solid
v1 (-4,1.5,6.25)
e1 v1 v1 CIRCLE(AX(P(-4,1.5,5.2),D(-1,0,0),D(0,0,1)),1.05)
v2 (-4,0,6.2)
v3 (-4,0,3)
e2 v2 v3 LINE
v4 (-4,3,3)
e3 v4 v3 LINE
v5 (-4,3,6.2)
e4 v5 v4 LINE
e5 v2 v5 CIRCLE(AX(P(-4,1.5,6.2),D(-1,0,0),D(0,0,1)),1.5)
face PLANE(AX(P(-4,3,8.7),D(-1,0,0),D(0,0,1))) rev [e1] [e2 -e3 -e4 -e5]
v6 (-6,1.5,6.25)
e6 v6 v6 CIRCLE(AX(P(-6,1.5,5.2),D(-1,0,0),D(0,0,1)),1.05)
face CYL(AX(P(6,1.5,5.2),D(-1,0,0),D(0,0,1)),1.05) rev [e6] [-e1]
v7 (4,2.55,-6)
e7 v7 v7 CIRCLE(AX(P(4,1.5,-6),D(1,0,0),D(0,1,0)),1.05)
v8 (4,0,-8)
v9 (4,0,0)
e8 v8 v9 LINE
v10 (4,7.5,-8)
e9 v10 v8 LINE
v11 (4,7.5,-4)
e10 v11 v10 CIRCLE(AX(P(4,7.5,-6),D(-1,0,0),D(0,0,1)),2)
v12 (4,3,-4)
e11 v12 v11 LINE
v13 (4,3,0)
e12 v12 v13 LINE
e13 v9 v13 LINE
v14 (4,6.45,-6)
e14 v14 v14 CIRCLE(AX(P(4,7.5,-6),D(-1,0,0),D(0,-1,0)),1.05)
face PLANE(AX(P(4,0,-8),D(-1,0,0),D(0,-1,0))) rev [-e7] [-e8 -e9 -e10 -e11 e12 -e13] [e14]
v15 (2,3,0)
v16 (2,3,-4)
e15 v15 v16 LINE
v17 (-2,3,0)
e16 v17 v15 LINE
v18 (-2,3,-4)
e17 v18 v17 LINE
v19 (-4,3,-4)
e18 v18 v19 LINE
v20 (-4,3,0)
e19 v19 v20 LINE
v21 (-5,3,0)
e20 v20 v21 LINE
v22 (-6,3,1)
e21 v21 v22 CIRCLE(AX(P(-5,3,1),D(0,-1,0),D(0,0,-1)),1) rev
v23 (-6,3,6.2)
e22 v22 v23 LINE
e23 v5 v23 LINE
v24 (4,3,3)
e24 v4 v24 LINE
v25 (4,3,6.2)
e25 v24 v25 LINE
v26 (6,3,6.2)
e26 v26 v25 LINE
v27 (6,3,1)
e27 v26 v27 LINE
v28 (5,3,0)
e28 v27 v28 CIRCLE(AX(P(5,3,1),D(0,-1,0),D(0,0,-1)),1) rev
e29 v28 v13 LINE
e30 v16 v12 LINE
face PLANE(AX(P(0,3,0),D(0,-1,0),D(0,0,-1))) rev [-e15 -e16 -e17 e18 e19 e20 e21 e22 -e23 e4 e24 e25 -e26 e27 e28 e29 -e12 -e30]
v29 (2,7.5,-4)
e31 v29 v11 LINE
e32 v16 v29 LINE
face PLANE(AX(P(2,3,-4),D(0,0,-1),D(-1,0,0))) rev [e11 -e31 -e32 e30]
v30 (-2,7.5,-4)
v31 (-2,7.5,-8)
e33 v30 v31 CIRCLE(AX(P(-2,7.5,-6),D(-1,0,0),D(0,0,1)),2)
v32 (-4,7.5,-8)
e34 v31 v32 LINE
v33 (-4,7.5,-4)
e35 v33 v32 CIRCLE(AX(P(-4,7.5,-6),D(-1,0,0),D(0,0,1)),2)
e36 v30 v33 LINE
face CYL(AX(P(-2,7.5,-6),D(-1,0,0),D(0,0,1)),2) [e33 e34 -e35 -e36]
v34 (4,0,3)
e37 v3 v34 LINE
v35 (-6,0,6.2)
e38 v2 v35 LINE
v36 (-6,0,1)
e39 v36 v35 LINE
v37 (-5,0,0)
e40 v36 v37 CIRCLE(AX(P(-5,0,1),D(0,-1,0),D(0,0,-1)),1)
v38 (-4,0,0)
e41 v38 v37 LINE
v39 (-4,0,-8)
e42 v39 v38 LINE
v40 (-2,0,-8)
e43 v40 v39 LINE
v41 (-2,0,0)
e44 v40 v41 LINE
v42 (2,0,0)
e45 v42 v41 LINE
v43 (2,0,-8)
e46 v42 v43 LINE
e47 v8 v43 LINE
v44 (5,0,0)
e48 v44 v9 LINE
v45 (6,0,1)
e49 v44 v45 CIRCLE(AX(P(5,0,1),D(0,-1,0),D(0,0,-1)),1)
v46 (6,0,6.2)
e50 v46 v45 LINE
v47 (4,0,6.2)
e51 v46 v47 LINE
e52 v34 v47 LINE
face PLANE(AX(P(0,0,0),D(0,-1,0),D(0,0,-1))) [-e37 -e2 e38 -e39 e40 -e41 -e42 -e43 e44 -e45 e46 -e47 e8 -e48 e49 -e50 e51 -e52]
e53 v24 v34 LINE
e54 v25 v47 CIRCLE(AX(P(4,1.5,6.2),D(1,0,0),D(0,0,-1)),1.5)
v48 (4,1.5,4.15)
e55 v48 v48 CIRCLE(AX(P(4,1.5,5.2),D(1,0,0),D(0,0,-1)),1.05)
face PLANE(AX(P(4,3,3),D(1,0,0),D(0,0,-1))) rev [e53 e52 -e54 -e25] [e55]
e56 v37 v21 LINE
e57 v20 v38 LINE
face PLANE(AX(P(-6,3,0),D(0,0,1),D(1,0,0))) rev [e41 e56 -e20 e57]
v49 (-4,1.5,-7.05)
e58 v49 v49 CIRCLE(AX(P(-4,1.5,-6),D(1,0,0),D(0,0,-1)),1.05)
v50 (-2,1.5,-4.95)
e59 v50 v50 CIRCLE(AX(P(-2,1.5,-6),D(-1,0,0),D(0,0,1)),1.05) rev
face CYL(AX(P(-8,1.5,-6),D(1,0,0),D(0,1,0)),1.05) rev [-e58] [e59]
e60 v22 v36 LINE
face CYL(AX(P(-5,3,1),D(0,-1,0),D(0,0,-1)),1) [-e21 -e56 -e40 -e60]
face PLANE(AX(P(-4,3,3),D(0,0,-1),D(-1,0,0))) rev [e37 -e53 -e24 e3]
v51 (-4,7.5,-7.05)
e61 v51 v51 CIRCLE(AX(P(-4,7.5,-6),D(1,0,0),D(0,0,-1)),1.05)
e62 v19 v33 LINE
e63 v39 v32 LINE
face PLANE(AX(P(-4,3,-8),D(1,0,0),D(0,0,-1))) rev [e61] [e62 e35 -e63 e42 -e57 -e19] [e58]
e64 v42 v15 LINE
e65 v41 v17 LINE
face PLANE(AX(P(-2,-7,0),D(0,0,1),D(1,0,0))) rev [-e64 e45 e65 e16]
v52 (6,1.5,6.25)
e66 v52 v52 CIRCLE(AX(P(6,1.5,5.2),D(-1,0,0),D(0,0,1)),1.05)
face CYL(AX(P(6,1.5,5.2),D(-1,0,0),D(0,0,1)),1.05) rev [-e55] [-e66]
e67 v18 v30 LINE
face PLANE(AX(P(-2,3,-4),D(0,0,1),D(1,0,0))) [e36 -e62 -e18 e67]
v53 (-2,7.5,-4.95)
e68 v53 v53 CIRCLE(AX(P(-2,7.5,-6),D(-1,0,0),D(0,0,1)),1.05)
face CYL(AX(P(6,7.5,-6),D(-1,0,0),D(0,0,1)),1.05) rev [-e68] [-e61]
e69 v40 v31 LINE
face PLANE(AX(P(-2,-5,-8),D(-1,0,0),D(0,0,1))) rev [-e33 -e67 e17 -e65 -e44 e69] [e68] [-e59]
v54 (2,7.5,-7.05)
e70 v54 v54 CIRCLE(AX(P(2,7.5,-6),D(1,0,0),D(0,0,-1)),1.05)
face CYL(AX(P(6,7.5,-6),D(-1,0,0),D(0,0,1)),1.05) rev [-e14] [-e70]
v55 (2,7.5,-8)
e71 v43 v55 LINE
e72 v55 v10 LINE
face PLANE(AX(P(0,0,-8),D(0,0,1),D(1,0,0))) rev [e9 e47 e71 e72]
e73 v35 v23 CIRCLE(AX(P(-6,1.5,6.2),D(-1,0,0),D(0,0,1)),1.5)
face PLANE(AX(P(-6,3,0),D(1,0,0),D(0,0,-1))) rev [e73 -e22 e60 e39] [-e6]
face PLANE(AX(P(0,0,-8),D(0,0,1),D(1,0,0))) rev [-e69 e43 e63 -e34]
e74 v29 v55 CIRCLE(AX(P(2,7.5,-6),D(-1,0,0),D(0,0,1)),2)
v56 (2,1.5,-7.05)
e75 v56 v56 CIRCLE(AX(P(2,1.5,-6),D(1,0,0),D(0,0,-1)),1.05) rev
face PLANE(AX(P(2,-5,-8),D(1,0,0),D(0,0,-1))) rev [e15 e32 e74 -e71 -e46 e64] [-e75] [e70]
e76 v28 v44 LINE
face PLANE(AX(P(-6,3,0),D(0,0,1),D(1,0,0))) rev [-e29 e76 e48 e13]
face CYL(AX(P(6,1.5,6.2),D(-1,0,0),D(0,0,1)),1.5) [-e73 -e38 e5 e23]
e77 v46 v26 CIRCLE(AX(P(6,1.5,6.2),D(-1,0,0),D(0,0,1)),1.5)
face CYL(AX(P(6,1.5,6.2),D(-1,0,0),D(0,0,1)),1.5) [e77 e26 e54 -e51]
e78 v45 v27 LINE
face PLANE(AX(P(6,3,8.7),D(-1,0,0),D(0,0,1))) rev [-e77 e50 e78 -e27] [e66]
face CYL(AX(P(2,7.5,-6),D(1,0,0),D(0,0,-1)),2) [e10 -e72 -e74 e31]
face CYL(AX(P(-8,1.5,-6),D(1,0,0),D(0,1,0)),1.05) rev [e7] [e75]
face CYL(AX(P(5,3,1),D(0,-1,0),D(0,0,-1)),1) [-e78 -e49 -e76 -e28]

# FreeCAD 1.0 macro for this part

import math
import FreeCAD as App
import Part
import Sketcher

V = App.Vector


def edges_at(feature, points):
    """Names of the edges that pass closest to the given points."""
    edges = feature.Shape.Edges
    near = lambda p: min(range(len(edges)), key=lambda i: edges[i].distToShape(Part.Vertex(*p))[0])
    return sorted({f"Edge{near(p) + 1}" for p in points})

doc = App.newDocument("Part")
body = doc.addObject("PartDesign::Body", "Body")

# Sketch on XZ plane
sketch1 = body.newObject("Sketcher::SketchObject", "Sketch")
sketch1.AttachmentSupport = (doc.getObject("XZ_Plane"), [""])
sketch1.MapMode = "FlatFace"
sketch1.addGeometry(Part.LineSegment(V(6, 0, 0), V(-6, 0, 0)), False)
sketch1.addGeometry(Part.LineSegment(V(-6, 0, 0), V(-6, 8.7, 0)), False)
sketch1.addGeometry(Part.LineSegment(V(-6, 8.7, 0), V(-4, 8.7, 0)), False)
sketch1.addGeometry(Part.LineSegment(V(-4, 8.7, 0), V(-4, 3, 0)), False)
sketch1.addGeometry(Part.LineSegment(V(-4, 3, 0), V(4, 3, 0)), False)
sketch1.addGeometry(Part.LineSegment(V(4, 3, 0), V(4, 8.7, 0)), False)
sketch1.addGeometry(Part.LineSegment(V(4, 8.7, 0), V(6, 8.7, 0)), False)
sketch1.addGeometry(Part.LineSegment(V(6, 8.7, 0), V(6, 0, 0)), False)
sketch1.addConstraint(Sketcher.Constraint("Coincident", 0, 2, 1, 1))
sketch1.addConstraint(Sketcher.Constraint("Coincident", 1, 2, 2, 1))
sketch1.addConstraint(Sketcher.Constraint("Coincident", 2, 2, 3, 1))
sketch1.addConstraint(Sketcher.Constraint("Coincident", 3, 2, 4, 1))
sketch1.addConstraint(Sketcher.Constraint("Coincident", 4, 2, 5, 1))
sketch1.addConstraint(Sketcher.Constraint("Coincident", 5, 2, 6, 1))
sketch1.addConstraint(Sketcher.Constraint("Coincident", 6, 2, 7, 1))
sketch1.addConstraint(Sketcher.Constraint("Coincident", 7, 2, 0, 1))
sketch1.addConstraint(Sketcher.Constraint("Horizontal", 0))
sketch1.addConstraint(Sketcher.Constraint("Vertical", 1))
sketch1.addConstraint(Sketcher.Constraint("Horizontal", 2))
sketch1.addConstraint(Sketcher.Constraint("Vertical", 3))
sketch1.addConstraint(Sketcher.Constraint("Horizontal", 4))
sketch1.addConstraint(Sketcher.Constraint("Vertical", 5))
sketch1.addConstraint(Sketcher.Constraint("Horizontal", 6))
sketch1.addConstraint(Sketcher.Constraint("Vertical", 7))
sketch1.addConstraint(Sketcher.Constraint("Symmetric", 0, 2, 7, 2, -1, 1))
sketch1.addConstraint(Sketcher.Constraint("Symmetric", 2, 2, 5, 2, -2))
sketch1.addConstraint(Sketcher.Constraint("DistanceX", 0, 2, 0, 1, 12.0))
sketch1.addConstraint(Sketcher.Constraint("DistanceX", 2, 1, 2, 2, 2.0))
sketch1.addConstraint(Sketcher.Constraint("DistanceY", 1, 1, 1, 2, 8.7))
sketch1.addConstraint(Sketcher.Constraint("DistanceY", 3, 2, 3, 1, 5.7))
pad1 = body.newObject("PartDesign::Pad", "Pad")
pad1.Profile = sketch1
pad1.Length = 3
pad1.Reversed = True

# Sketch on YZ plane
sketch2 = body.newObject("Sketcher::SketchObject", "Sketch001")
sketch2.AttachmentSupport = (doc.getObject("YZ_Plane"), [""])
sketch2.MapMode = "FlatFace"
sketch2.AttachmentOffset = App.Placement(V(0, 0, -6), App.Rotation())
sketch2.addGeometry(Part.LineSegment(V(5.5, -2.5, 0), V(-2.5, -2.5, 0)), False)
sketch2.addGeometry(Part.LineSegment(V(-2.5, -2.5, 0), V(-2.5, 11.2, 0)), False)
sketch2.addGeometry(Part.LineSegment(V(-2.5, 11.2, 0), V(5.5, 11.2, 0)), False)
sketch2.addGeometry(Part.LineSegment(V(5.5, 11.2, 0), V(5.5, -2.5, 0)), False)
sketch2.addGeometry(Part.LineSegment(V(3, 0, 0), V(3, 6.2, 0)), False)
sketch2.addGeometry(Part.ArcOfCircle(Part.Circle(V(1.5, 6.2, 0), V(0, 0, 1), 1.5), math.radians(0), math.radians(180)), False)
sketch2.addGeometry(Part.LineSegment(V(0, 6.2, 0), V(0, 0, 0)), False)
sketch2.addGeometry(Part.LineSegment(V(0, 0, 0), V(3, 0, 0)), False)
sketch2.addConstraint(Sketcher.Constraint("Coincident", 0, 2, 1, 1))
sketch2.addConstraint(Sketcher.Constraint("Coincident", 1, 2, 2, 1))
sketch2.addConstraint(Sketcher.Constraint("Coincident", 2, 2, 3, 1))
sketch2.addConstraint(Sketcher.Constraint("Coincident", 3, 2, 0, 1))
sketch2.addConstraint(Sketcher.Constraint("Tangent", 4, 2, 5, 1))
sketch2.addConstraint(Sketcher.Constraint("Tangent", 5, 2, 6, 1))
sketch2.addConstraint(Sketcher.Constraint("Coincident", 6, 2, 7, 1))
sketch2.addConstraint(Sketcher.Constraint("Coincident", 7, 2, 4, 1))
sketch2.addConstraint(Sketcher.Constraint("Horizontal", 0))
sketch2.addConstraint(Sketcher.Constraint("Vertical", 1))
sketch2.addConstraint(Sketcher.Constraint("Horizontal", 2))
sketch2.addConstraint(Sketcher.Constraint("Vertical", 3))
sketch2.addConstraint(Sketcher.Constraint("Vertical", 4))
sketch2.addConstraint(Sketcher.Constraint("Vertical", 6))
sketch2.addConstraint(Sketcher.Constraint("Horizontal", 7))
sketch2.addConstraint(Sketcher.Constraint("Coincident", 6, 2, -1, 1))
sketch2.addConstraint(Sketcher.Constraint("Radius", 5, 1.5))
sketch2.addConstraint(Sketcher.Constraint("DistanceY", 4, 1, 4, 2, 6.2))
sketch2.addConstraint(Sketcher.Constraint("DistanceX", 0, 2, 0, 1, 8.024))
sketch2.addConstraint(Sketcher.Constraint("DistanceY", 1, 1, 1, 2, 13.724))
sketch2.addConstraint(Sketcher.Constraint("DistanceX", 0, 2, -1, 1, 2.512))
sketch2.addConstraint(Sketcher.Constraint("DistanceY", 0, 2, -1, 1, 2.512))
pocket1 = body.newObject("PartDesign::Pocket", "Pocket")
pocket1.Profile = sketch2
pocket1.Length = 12
pocket1.Reversed = True

# Sketch on YZ plane
sketch3 = body.newObject("Sketcher::SketchObject", "Sketch002")
sketch3.AttachmentSupport = (doc.getObject("YZ_Plane"), [""])
sketch3.MapMode = "FlatFace"
sketch3.AttachmentOffset = App.Placement(V(0, 0, -6), App.Rotation())
sketch3.addGeometry(Part.Circle(V(1.5, 5.2, 0), V(0, 0, 1), 1.1), False)
sketch3.addConstraint(Sketcher.Constraint("Diameter", 0, 2.1))
sketch3.addConstraint(Sketcher.Constraint("DistanceX", -1, 1, 0, 3, 1.5))
sketch3.addConstraint(Sketcher.Constraint("DistanceY", -1, 1, 0, 3, 5.2))
pocket2 = body.newObject("PartDesign::Pocket", "Pocket001")
pocket2.Profile = sketch3
pocket2.Length = 12
pocket2.Reversed = True
doc.recompute()

fillet = body.newObject("PartDesign::Fillet", "Fillet")
fillet.Base = (pocket2, edges_at(pocket2, [(-6, 1.5, 0), (6, 1.5, 0)]))
fillet.Radius = 1

# Sketch on XY plane
sketch4 = body.newObject("Sketcher::SketchObject", "Sketch003")
sketch4.AttachmentSupport = (doc.getObject("XY_Plane"), [""])
sketch4.MapMode = "FlatFace"
sketch4.addGeometry(Part.Circle(V(0, 1.5, 0), V(0, 0, 1), 0.9), False)
sketch4.addConstraint(Sketcher.Constraint("PointOnObject", 0, 3, -2))
sketch4.addConstraint(Sketcher.Constraint("Diameter", 0, 1.9))
sketch4.addConstraint(Sketcher.Constraint("DistanceY", -1, 1, 0, 3, 1.5))
pad2 = body.newObject("PartDesign::Pad", "Pad001")
pad2.Profile = sketch4
pad2.Length = 2
pad2.Reversed = True

# Sketch on XY plane
sketch5 = body.newObject("Sketcher::SketchObject", "Sketch004")
sketch5.AttachmentSupport = (doc.getObject("XY_Plane"), [""])
sketch5.MapMode = "FlatFace"
sketch5.AttachmentOffset = App.Placement(V(0, 0, -2), App.Rotation())
sketch5.addGeometry(Part.LineSegment(V(4, 3, 0), V(4, 0, 0)), False)
sketch5.addGeometry(Part.LineSegment(V(4, 0, 0), V(-4, 0, 0)), False)
sketch5.addGeometry(Part.LineSegment(V(-4, 0, 0), V(-4, 3, 0)), False)
sketch5.addGeometry(Part.LineSegment(V(-4, 3, 0), V(4, 3, 0)), False)
sketch5.addConstraint(Sketcher.Constraint("Coincident", 0, 2, 1, 1))
sketch5.addConstraint(Sketcher.Constraint("Coincident", 1, 2, 2, 1))
sketch5.addConstraint(Sketcher.Constraint("Coincident", 2, 2, 3, 1))
sketch5.addConstraint(Sketcher.Constraint("Coincident", 3, 2, 0, 1))
sketch5.addConstraint(Sketcher.Constraint("Vertical", 0))
sketch5.addConstraint(Sketcher.Constraint("Horizontal", 1))
sketch5.addConstraint(Sketcher.Constraint("Vertical", 2))
sketch5.addConstraint(Sketcher.Constraint("Horizontal", 3))
sketch5.addConstraint(Sketcher.Constraint("Symmetric", 0, 2, 1, 2, -1, 1))
sketch5.addConstraint(Sketcher.Constraint("DistanceX", 1, 2, 1, 1, 8.0))
sketch5.addConstraint(Sketcher.Constraint("DistanceY", 0, 2, 0, 1, 3.0))
pad3 = body.newObject("PartDesign::Pad", "Pad002")
pad3.Profile = sketch5
pad3.Length = 6
pad3.Reversed = True

# Sketch on YZ plane
sketch6 = body.newObject("Sketcher::SketchObject", "Sketch005")
sketch6.AttachmentSupport = (doc.getObject("YZ_Plane"), [""])
sketch6.MapMode = "FlatFace"
sketch6.AttachmentOffset = App.Placement(V(0, 0, 4), App.Rotation())
sketch6.addGeometry(Part.Circle(V(1.5, -6, 0), V(0, 0, 1), 1.1), False)
sketch6.addConstraint(Sketcher.Constraint("Diameter", 0, 2.1))
sketch6.addConstraint(Sketcher.Constraint("DistanceY", 0, 3, -1, 1, 6.0))
sketch6.addConstraint(Sketcher.Constraint("DistanceX", -1, 1, 0, 3, 1.5))
pocket3 = body.newObject("PartDesign::Pocket", "Pocket002")
pocket3.Profile = sketch6
pocket3.Length = 12

# Sketch on XZ plane
sketch7 = body.newObject("Sketcher::SketchObject", "Sketch006")
sketch7.AttachmentSupport = (doc.getObject("XZ_Plane"), [""])
sketch7.MapMode = "FlatFace"
sketch7.AttachmentOffset = App.Placement(V(0, 0, -3), App.Rotation())
sketch7.addGeometry(Part.LineSegment(V(2, -8, 0), V(-2, -8, 0)), False)
sketch7.addGeometry(Part.LineSegment(V(-2, -8, 0), V(-2, -6, 0)), False)
sketch7.addGeometry(Part.LineSegment(V(-2, -6, 0), V(2, -6, 0)), False)
sketch7.addGeometry(Part.LineSegment(V(2, -6, 0), V(2, -8, 0)), False)
sketch7.addConstraint(Sketcher.Constraint("Coincident", 0, 2, 1, 1))
sketch7.addConstraint(Sketcher.Constraint("Coincident", 1, 2, 2, 1))
sketch7.addConstraint(Sketcher.Constraint("Coincident", 2, 2, 3, 1))
sketch7.addConstraint(Sketcher.Constraint("Coincident", 3, 2, 0, 1))
sketch7.addConstraint(Sketcher.Constraint("Horizontal", 0))
sketch7.addConstraint(Sketcher.Constraint("Vertical", 1))
sketch7.addConstraint(Sketcher.Constraint("Horizontal", 2))
sketch7.addConstraint(Sketcher.Constraint("Vertical", 3))
sketch7.addConstraint(Sketcher.Constraint("DistanceX", 0, 2, 0, 1, 4.0))
sketch7.addConstraint(Sketcher.Constraint("DistanceY", 1, 1, 1, 2, 2.0))
sketch7.addConstraint(Sketcher.Constraint("DistanceX", 0, 2, -1, 1, 2.0))
sketch7.addConstraint(Sketcher.Constraint("DistanceY", 0, 2, -1, 1, 8.0))
pocket4 = body.newObject("PartDesign::Pocket", "Pocket003")
pocket4.Profile = sketch7
pocket4.Length = 8
pocket4.Reversed = True

# Sketch on YZ plane
sketch8 = body.newObject("Sketcher::SketchObject", "Sketch007")
sketch8.AttachmentSupport = (doc.getObject("YZ_Plane"), [""])
sketch8.MapMode = "FlatFace"
sketch8.AttachmentOffset = App.Placement(V(0, 0, -4), App.Rotation())
sketch8.addGeometry(Part.LineSegment(V(7.5, -8, 0), V(3, -8, 0)), False)
sketch8.addGeometry(Part.LineSegment(V(3, -8, 0), V(3, -4, 0)), False)
sketch8.addGeometry(Part.LineSegment(V(3, -4, 0), V(7.5, -4, 0)), False)
sketch8.addGeometry(Part.ArcOfCircle(Part.Circle(V(7.5, -6, 0), V(0, 0, 1), 2), math.radians(-90), math.radians(90)), False)
sketch8.addConstraint(Sketcher.Constraint("Coincident", 0, 2, 1, 1))
sketch8.addConstraint(Sketcher.Constraint("Coincident", 1, 2, 2, 1))
sketch8.addConstraint(Sketcher.Constraint("Tangent", 2, 2, 3, 2))
sketch8.addConstraint(Sketcher.Constraint("Tangent", 3, 1, 0, 1))
sketch8.addConstraint(Sketcher.Constraint("Horizontal", 0))
sketch8.addConstraint(Sketcher.Constraint("Vertical", 1))
sketch8.addConstraint(Sketcher.Constraint("Horizontal", 2))
sketch8.addConstraint(Sketcher.Constraint("Radius", 3, 2.0))
sketch8.addConstraint(Sketcher.Constraint("DistanceX", 0, 2, 0, 1, 4.5))
sketch8.addConstraint(Sketcher.Constraint("DistanceY", 3, 3, -1, 1, 6.0))
sketch8.addConstraint(Sketcher.Constraint("DistanceX", -1, 1, 0, 2, 3.0))
pad4 = body.newObject("PartDesign::Pad", "Pad003")
pad4.Profile = sketch8
pad4.Length = 2
doc.recompute()

mirrored = body.newObject("PartDesign::Mirrored", "Mirrored")
mirrored.Originals = [pad4]
mirrored.MirrorPlane = (doc.getObject("YZ_Plane"), [""])
body.Tip = mirrored

# Sketch on XY plane
sketch9 = body.newObject("Sketcher::SketchObject", "Sketch008")
sketch9.AttachmentSupport = (doc.getObject("XY_Plane"), [""])
sketch9.MapMode = "FlatFace"
sketch9.AttachmentOffset = App.Placement(V(0, 0, -2), App.Rotation())
sketch9.addGeometry(Part.LineSegment(V(-4, 3, 0), V(-4, 0, 0)), False)
sketch9.addGeometry(Part.LineSegment(V(-4, 0, 0), V(4, 0, 0)), False)
sketch9.addGeometry(Part.LineSegment(V(4, 0, 0), V(4, 3, 0)), False)
sketch9.addGeometry(Part.LineSegment(V(4, 3, 0), V(-4, 3, 0)), False)
sketch9.addConstraint(Sketcher.Constraint("Coincident", 0, 2, 1, 1))
sketch9.addConstraint(Sketcher.Constraint("Coincident", 1, 2, 2, 1))
sketch9.addConstraint(Sketcher.Constraint("Coincident", 2, 2, 3, 1))
sketch9.addConstraint(Sketcher.Constraint("Coincident", 3, 2, 0, 1))
sketch9.addConstraint(Sketcher.Constraint("Vertical", 0))
sketch9.addConstraint(Sketcher.Constraint("Horizontal", 1))
sketch9.addConstraint(Sketcher.Constraint("Vertical", 2))
sketch9.addConstraint(Sketcher.Constraint("Horizontal", 3))
sketch9.addConstraint(Sketcher.Constraint("Symmetric", 0, 2, 1, 2, -1, 1))
sketch9.addConstraint(Sketcher.Constraint("DistanceX", 1, 1, 1, 2, 8.0))
sketch9.addConstraint(Sketcher.Constraint("DistanceY", 0, 2, 0, 1, 3.0))
pad5 = body.newObject("PartDesign::Pad", "Pad004")
pad5.Profile = sketch9
pad5.Length = 2

# Sketch on XZ plane
sketch10 = body.newObject("Sketcher::SketchObject", "Sketch009")
sketch10.AttachmentSupport = (doc.getObject("XZ_Plane"), [""])
sketch10.MapMode = "FlatFace"
sketch10.AttachmentOffset = App.Placement(V(0, 0, -3), App.Rotation())
sketch10.addGeometry(Part.LineSegment(V(-2, -6, 0), V(-2, 0, 0)), False)
sketch10.addGeometry(Part.LineSegment(V(-2, 0, 0), V(2, 0, 0)), False)
sketch10.addGeometry(Part.LineSegment(V(2, 0, 0), V(2, -6, 0)), False)
sketch10.addGeometry(Part.LineSegment(V(2, -6, 0), V(-2, -6, 0)), False)
sketch10.addConstraint(Sketcher.Constraint("Coincident", 0, 2, 1, 1))
sketch10.addConstraint(Sketcher.Constraint("Coincident", 1, 2, 2, 1))
sketch10.addConstraint(Sketcher.Constraint("Coincident", 2, 2, 3, 1))
sketch10.addConstraint(Sketcher.Constraint("Coincident", 3, 2, 0, 1))
sketch10.addConstraint(Sketcher.Constraint("Vertical", 0))
sketch10.addConstraint(Sketcher.Constraint("Horizontal", 1))
sketch10.addConstraint(Sketcher.Constraint("Vertical", 2))
sketch10.addConstraint(Sketcher.Constraint("Horizontal", 3))
sketch10.addConstraint(Sketcher.Constraint("Symmetric", 0, 2, 1, 2, -1, 1))
sketch10.addConstraint(Sketcher.Constraint("DistanceX", 1, 1, 1, 2, 4.0))
sketch10.addConstraint(Sketcher.Constraint("DistanceY", 0, 1, 0, 2, 6.0))
pocket5 = body.newObject("PartDesign::Pocket", "Pocket004")
pocket5.Profile = sketch10
pocket5.Length = 10
pocket5.Reversed = True

# Sketch on YZ plane
sketch11 = body.newObject("Sketcher::SketchObject", "Sketch010")
sketch11.AttachmentSupport = (doc.getObject("YZ_Plane"), [""])
sketch11.MapMode = "FlatFace"
sketch11.AttachmentOffset = App.Placement(V(0, 0, -2), App.Rotation())
sketch11.addGeometry(Part.Circle(V(7.5, -6, 0), V(0, 0, 1), 1.1), False)
sketch11.addConstraint(Sketcher.Constraint("Diameter", 0, 2.1))
sketch11.addConstraint(Sketcher.Constraint("DistanceY", 0, 3, -1, 1, 6.0))
sketch11.addConstraint(Sketcher.Constraint("DistanceX", -1, 1, 0, 3, 7.5))
pocket6 = body.newObject("PartDesign::Pocket", "Pocket005")
pocket6.Profile = sketch11
pocket6.Type = "ThroughAll"
pocket6.Midplane = True

doc.recompute()
